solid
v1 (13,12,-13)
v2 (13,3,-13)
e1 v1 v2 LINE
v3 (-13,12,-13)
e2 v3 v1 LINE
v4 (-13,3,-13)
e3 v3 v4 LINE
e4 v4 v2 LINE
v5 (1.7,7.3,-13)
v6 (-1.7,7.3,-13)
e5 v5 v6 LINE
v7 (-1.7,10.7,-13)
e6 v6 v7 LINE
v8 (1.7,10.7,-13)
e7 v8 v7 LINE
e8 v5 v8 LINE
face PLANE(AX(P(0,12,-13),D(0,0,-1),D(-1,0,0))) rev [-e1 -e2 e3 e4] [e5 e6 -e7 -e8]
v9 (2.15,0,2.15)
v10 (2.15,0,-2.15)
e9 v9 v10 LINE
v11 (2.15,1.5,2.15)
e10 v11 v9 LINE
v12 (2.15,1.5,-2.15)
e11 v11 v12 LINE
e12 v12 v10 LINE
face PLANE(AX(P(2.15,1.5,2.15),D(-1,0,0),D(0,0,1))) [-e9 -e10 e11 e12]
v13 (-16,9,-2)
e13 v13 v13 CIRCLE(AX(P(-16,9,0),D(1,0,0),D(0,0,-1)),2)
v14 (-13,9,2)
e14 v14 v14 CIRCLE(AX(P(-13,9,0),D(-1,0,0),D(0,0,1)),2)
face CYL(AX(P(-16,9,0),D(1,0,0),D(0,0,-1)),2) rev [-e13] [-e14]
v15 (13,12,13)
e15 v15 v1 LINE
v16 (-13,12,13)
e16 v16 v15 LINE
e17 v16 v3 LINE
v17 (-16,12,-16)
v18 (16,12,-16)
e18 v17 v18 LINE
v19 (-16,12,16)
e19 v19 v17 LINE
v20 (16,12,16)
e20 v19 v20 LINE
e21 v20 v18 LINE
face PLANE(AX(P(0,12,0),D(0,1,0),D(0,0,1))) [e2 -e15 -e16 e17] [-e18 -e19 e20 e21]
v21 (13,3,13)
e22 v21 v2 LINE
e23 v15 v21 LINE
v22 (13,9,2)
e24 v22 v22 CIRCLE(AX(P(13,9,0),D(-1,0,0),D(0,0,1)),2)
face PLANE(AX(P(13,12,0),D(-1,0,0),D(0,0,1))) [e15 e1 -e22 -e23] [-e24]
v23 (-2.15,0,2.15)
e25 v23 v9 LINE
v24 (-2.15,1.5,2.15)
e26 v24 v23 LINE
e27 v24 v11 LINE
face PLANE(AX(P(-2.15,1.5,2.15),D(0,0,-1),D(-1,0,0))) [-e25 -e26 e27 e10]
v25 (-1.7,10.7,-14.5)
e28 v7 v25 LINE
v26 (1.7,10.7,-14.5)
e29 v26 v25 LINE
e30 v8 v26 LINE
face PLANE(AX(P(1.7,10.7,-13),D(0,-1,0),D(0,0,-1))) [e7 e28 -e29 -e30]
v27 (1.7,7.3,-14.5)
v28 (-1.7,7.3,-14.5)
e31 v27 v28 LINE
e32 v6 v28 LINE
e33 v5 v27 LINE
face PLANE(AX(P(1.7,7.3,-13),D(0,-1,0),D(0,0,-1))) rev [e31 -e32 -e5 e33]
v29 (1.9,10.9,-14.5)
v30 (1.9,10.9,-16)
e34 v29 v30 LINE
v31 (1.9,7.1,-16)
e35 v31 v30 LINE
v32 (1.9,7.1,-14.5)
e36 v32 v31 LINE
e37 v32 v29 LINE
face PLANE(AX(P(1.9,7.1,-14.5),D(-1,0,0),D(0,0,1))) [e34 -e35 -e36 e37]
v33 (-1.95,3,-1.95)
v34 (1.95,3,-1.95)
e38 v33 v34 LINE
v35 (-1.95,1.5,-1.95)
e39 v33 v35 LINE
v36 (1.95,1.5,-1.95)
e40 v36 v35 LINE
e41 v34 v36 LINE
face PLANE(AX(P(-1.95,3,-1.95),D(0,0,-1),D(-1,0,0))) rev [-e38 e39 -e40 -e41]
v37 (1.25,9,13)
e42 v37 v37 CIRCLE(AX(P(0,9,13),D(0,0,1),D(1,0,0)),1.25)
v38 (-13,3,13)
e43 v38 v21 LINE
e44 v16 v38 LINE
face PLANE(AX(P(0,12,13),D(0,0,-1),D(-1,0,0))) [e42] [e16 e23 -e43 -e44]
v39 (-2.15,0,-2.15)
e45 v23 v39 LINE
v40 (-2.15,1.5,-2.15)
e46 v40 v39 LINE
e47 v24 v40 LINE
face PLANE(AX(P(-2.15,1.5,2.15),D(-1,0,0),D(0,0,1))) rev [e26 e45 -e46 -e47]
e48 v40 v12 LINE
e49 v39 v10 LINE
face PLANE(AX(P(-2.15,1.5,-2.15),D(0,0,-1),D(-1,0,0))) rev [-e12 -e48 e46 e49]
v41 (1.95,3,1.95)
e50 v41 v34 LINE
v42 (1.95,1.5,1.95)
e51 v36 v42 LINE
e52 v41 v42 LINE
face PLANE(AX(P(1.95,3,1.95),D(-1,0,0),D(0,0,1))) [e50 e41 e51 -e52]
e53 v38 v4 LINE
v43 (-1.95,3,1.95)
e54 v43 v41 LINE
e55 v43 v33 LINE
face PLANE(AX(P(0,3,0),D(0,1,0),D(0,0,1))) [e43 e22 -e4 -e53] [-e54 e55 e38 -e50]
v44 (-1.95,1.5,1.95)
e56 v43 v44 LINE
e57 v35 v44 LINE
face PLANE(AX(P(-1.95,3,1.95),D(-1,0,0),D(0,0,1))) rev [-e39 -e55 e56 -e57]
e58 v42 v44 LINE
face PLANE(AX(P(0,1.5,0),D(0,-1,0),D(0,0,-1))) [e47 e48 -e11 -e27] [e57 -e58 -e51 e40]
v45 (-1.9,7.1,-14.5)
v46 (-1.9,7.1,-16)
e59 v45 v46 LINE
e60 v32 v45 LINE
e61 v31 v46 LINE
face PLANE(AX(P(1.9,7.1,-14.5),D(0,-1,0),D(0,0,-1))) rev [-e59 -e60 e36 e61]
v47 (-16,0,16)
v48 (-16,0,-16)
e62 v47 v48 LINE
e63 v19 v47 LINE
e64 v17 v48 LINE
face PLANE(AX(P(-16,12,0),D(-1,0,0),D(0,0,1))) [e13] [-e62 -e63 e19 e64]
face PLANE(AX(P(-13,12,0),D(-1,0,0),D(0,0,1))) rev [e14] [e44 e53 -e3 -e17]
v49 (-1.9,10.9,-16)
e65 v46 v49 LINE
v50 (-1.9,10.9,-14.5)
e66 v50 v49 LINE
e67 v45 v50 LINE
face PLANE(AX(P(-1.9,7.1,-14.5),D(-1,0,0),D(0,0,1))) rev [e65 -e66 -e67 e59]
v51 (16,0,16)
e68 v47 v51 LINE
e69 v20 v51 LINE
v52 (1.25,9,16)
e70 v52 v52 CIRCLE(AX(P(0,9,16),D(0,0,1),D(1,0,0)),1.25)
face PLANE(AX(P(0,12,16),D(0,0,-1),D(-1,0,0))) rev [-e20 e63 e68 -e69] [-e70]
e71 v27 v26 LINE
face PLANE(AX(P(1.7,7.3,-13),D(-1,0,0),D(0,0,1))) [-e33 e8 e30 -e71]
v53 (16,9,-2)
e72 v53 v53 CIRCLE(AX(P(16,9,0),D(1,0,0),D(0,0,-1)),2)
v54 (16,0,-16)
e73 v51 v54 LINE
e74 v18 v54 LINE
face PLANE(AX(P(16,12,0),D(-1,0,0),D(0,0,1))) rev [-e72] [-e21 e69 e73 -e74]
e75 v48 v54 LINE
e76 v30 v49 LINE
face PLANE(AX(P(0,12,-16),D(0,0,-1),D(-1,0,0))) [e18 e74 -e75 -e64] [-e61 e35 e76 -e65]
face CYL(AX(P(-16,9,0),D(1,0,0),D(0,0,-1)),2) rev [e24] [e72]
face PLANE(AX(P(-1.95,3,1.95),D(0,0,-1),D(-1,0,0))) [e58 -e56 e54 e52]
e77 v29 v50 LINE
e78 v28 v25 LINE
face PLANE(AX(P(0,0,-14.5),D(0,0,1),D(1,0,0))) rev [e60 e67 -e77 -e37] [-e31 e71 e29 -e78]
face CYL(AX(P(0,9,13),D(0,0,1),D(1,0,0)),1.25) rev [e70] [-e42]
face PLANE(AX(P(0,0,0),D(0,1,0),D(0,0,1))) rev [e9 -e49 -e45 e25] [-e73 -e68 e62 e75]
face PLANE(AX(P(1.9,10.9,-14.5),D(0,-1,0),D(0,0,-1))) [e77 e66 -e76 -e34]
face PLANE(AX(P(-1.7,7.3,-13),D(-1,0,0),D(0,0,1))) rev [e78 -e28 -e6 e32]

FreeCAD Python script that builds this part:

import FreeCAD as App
import Part
import Sketcher
Q = App.Units.Quantity


def add_polygon(sketch, points):
    """Adds a closed chain of lines whose ends are joined by coincident constraints."""
    first, n = sketch.GeometryCount, len(points)
    for a, b in zip(points, points[1:] + points[:1]):
        sketch.addGeometry(Part.LineSegment(App.Vector(*a, 0), App.Vector(*b, 0)), False)
    for i in range(n):
        sketch.addConstraint(Sketcher.Constraint("Coincident", first + i, 2, first + (i + 1) % n, 1))

doc = App.newDocument("Part")
body = doc.addObject("PartDesign::Body", "Body")

# Sketch on XZ plane
sketch1 = body.newObject("Sketcher::SketchObject", "Sketch")
sketch1.AttachmentSupport = (doc.getObject("XZ_Plane"), [""])
sketch1.MapMode = "FlatFace"
add_polygon(sketch1, [(-13, -13), (-13, 13), (13, 13), (13, -13)])  # lines 0-3
sketch1.addConstraint([
    Sketcher.Constraint("Vertical", 0),
    Sketcher.Constraint("Horizontal", 1),
    Sketcher.Constraint("Vertical", 2),
    Sketcher.Constraint("Horizontal", 3),
    Sketcher.Constraint("Symmetric", 0, 2, 2, 2, -1, 1),
    Sketcher.Constraint("Equal", 3, 0),
    Sketcher.Constraint("DistanceX", 1, 1, 1, 2, Q("26 mm")),
])
pad1 = body.newObject("PartDesign::Pad", "Pad")
pad1.Profile = sketch1
pad1.Length = 3
pad1.Reversed = True

# Sketch on XZ plane
sketch2 = body.newObject("Sketcher::SketchObject", "Sketch001")
sketch2.AttachmentSupport = (doc.getObject("XZ_Plane"), [""])
sketch2.MapMode = "FlatFace"
add_polygon(sketch2, [(-16, -16), (-16, 16), (16, 16), (16, -16)])  # lines 0-3
add_polygon(sketch2, [(13, 13), (-13, 13), (-13, -13), (13, -13)])  # lines 4-7
sketch2.addConstraint([
    Sketcher.Constraint("Vertical", 0),
    Sketcher.Constraint("Horizontal", 1),
    Sketcher.Constraint("Vertical", 2),
    Sketcher.Constraint("Horizontal", 3),
    Sketcher.Constraint("Horizontal", 4),
    Sketcher.Constraint("Vertical", 5),
    Sketcher.Constraint("Horizontal", 6),
    Sketcher.Constraint("Vertical", 7),
    Sketcher.Constraint("Symmetric", 0, 2, 2, 2, -1, 1),
    Sketcher.Constraint("Symmetric", 4, 2, 6, 2, -1, 1),
    Sketcher.Constraint("Equal", 3, 0),
    Sketcher.Constraint("Equal", 6, 5),
    Sketcher.Constraint("DistanceX", 1, 1, 1, 2, Q("32 mm")),
    Sketcher.Constraint("DistanceX", 4, 2, 4, 1, Q("26 mm")),
])
pad2 = body.newObject("PartDesign::Pad", "Pad001")
pad2.Profile = sketch2
pad2.Length = 12
pad2.Reversed = True

# Sketch on XZ plane
sketch3 = body.newObject("Sketcher::SketchObject", "Sketch002")
sketch3.AttachmentSupport = (doc.getObject("XZ_Plane"), [""])
sketch3.MapMode = "FlatFace"
add_polygon(sketch3, [(-1.9, -1.9), (-1.9, 1.9), (1.9, 1.9), (1.9, -1.9)])  # lines 0-3
sketch3.addConstraint([
    Sketcher.Constraint("Vertical", 0),
    Sketcher.Constraint("Horizontal", 1),
    Sketcher.Constraint("Vertical", 2),
    Sketcher.Constraint("Horizontal", 3),
    Sketcher.Constraint("Symmetric", 0, 2, 2, 2, -1, 1),
    Sketcher.Constraint("Equal", 3, 0),
    Sketcher.Constraint("DistanceX", 1, 1, 1, 2, Q("3.9 mm")),
])
pocket1 = body.newObject("PartDesign::Pocket", "Pocket")
pocket1.Profile = sketch3
pocket1.Length = 3

# Sketch on XZ plane
sketch4 = body.newObject("Sketcher::SketchObject", "Sketch003")
sketch4.AttachmentSupport = (doc.getObject("XZ_Plane"), [""])
sketch4.MapMode = "FlatFace"
add_polygon(sketch4, [(-2.1, -2.1), (-2.1, 2.1), (2.1, 2.1), (2.1, -2.1)])  # lines 0-3
sketch4.addConstraint([
    Sketcher.Constraint("Vertical", 0),
    Sketcher.Constraint("Horizontal", 1),
    Sketcher.Constraint("Vertical", 2),
    Sketcher.Constraint("Horizontal", 3),
    Sketcher.Constraint("Symmetric", 0, 2, 2, 2, -1, 1),
    Sketcher.Constraint("Equal", 3, 0),
    Sketcher.Constraint("DistanceX", 1, 1, 1, 2, Q("4.3 mm")),
])
pocket2 = body.newObject("PartDesign::Pocket", "Pocket001")
pocket2.Profile = sketch4
pocket2.Length = 1.5

# Sketch on YZ plane
sketch5 = body.newObject("Sketcher::SketchObject", "Sketch004")
sketch5.AttachmentSupport = (doc.getObject("YZ_Plane"), [""])
sketch5.MapMode = "FlatFace"
sketch5.AttachmentOffset = App.Placement(App.Vector(0, 0, 16), App.Rotation())
sketch5.addGeometry(Part.Circle(App.Vector(9, 0, 0), App.Vector(0, 0, 1), 2), False)
sketch5.addConstraint([
    Sketcher.Constraint("PointOnObject", 0, 3, -1),
    Sketcher.Constraint("Diameter", 0, Q("4 mm")),
    Sketcher.Constraint("DistanceX", -1, 1, 0, 3, Q("9 mm")),
])
pocket3 = body.newObject("PartDesign::Pocket", "Pocket002")
pocket3.Profile = sketch5
pocket3.Length = 32

# Sketch on XY plane
sketch6 = body.newObject("Sketcher::SketchObject", "Sketch005")
sketch6.AttachmentSupport = (doc.getObject("XY_Plane"), [""])
sketch6.MapMode = "FlatFace"
sketch6.AttachmentOffset = App.Placement(App.Vector(0, 0, -16), App.Rotation())
add_polygon(sketch6, [(1.7, 10.7), (1.7, 7.3), (-1.7, 7.3), (-1.7, 10.7)])  # lines 0-3
sketch6.addConstraint([
    Sketcher.Constraint("Vertical", 0),
    Sketcher.Constraint("Horizontal", 1),
    Sketcher.Constraint("Vertical", 2),
    Sketcher.Constraint("Horizontal", 3),
    Sketcher.Constraint("Equal", 3, 0),
    Sketcher.Constraint("DistanceX", 1, 2, 1, 1, Q("3.4 mm")),
    Sketcher.Constraint("DistanceX", -1, 1, 0, 2, Q("1.7 mm")),
    Sketcher.Constraint("DistanceY", -1, 1, 0, 2, Q("7.3 mm")),
])
pocket4 = body.newObject("PartDesign::Pocket", "Pocket003")
pocket4.Profile = sketch6
pocket4.Length = 3
pocket4.Reversed = True

# Sketch on XY plane
sketch7 = body.newObject("Sketcher::SketchObject", "Sketch006")
sketch7.AttachmentSupport = (doc.getObject("XY_Plane"), [""])
sketch7.MapMode = "FlatFace"
sketch7.AttachmentOffset = App.Placement(App.Vector(0, 0, -16), App.Rotation())
add_polygon(sketch7, [(1.9, 10.9), (1.9, 7.1), (-1.9, 7.1), (-1.9, 10.9)])  # lines 0-3
sketch7.addConstraint([
    Sketcher.Constraint("Vertical", 0),
    Sketcher.Constraint("Horizontal", 1),
    Sketcher.Constraint("Vertical", 2),
    Sketcher.Constraint("Horizontal", 3),
    Sketcher.Constraint("Equal", 3, 0),
    Sketcher.Constraint("DistanceX", 1, 2, 1, 1, Q("3.8 mm")),
    Sketcher.Constraint("DistanceX", -1, 1, 0, 2, Q("1.9 mm")),
    Sketcher.Constraint("DistanceY", -1, 1, 0, 2, Q("7.1 mm")),
])
pocket5 = body.newObject("PartDesign::Pocket", "Pocket004")
pocket5.Profile = sketch7
pocket5.Length = 1.5
pocket5.Reversed = True

# Sketch on XY plane
sketch8 = body.newObject("Sketcher::SketchObject", "Sketch007")
sketch8.AttachmentSupport = (doc.getObject("XY_Plane"), [""])
sketch8.MapMode = "FlatFace"
sketch8.AttachmentOffset = App.Placement(App.Vector(0, 0, 16), App.Rotation())
sketch8.addGeometry(Part.Circle(App.Vector(0, 9, 0), App.Vector(0, 0, 1), 1.2), False)
sketch8.addConstraint([
    Sketcher.Constraint("PointOnObject", 0, 3, -2),
    Sketcher.Constraint("Diameter", 0, Q("2.5 mm")),
    Sketcher.Constraint("DistanceY", -1, 1, 0, 3, Q("9 mm")),
])
pocket6 = body.newObject("PartDesign::Pocket", "Pocket005")
pocket6.Profile = sketch8
pocket6.Length = 3

doc.recompute()
